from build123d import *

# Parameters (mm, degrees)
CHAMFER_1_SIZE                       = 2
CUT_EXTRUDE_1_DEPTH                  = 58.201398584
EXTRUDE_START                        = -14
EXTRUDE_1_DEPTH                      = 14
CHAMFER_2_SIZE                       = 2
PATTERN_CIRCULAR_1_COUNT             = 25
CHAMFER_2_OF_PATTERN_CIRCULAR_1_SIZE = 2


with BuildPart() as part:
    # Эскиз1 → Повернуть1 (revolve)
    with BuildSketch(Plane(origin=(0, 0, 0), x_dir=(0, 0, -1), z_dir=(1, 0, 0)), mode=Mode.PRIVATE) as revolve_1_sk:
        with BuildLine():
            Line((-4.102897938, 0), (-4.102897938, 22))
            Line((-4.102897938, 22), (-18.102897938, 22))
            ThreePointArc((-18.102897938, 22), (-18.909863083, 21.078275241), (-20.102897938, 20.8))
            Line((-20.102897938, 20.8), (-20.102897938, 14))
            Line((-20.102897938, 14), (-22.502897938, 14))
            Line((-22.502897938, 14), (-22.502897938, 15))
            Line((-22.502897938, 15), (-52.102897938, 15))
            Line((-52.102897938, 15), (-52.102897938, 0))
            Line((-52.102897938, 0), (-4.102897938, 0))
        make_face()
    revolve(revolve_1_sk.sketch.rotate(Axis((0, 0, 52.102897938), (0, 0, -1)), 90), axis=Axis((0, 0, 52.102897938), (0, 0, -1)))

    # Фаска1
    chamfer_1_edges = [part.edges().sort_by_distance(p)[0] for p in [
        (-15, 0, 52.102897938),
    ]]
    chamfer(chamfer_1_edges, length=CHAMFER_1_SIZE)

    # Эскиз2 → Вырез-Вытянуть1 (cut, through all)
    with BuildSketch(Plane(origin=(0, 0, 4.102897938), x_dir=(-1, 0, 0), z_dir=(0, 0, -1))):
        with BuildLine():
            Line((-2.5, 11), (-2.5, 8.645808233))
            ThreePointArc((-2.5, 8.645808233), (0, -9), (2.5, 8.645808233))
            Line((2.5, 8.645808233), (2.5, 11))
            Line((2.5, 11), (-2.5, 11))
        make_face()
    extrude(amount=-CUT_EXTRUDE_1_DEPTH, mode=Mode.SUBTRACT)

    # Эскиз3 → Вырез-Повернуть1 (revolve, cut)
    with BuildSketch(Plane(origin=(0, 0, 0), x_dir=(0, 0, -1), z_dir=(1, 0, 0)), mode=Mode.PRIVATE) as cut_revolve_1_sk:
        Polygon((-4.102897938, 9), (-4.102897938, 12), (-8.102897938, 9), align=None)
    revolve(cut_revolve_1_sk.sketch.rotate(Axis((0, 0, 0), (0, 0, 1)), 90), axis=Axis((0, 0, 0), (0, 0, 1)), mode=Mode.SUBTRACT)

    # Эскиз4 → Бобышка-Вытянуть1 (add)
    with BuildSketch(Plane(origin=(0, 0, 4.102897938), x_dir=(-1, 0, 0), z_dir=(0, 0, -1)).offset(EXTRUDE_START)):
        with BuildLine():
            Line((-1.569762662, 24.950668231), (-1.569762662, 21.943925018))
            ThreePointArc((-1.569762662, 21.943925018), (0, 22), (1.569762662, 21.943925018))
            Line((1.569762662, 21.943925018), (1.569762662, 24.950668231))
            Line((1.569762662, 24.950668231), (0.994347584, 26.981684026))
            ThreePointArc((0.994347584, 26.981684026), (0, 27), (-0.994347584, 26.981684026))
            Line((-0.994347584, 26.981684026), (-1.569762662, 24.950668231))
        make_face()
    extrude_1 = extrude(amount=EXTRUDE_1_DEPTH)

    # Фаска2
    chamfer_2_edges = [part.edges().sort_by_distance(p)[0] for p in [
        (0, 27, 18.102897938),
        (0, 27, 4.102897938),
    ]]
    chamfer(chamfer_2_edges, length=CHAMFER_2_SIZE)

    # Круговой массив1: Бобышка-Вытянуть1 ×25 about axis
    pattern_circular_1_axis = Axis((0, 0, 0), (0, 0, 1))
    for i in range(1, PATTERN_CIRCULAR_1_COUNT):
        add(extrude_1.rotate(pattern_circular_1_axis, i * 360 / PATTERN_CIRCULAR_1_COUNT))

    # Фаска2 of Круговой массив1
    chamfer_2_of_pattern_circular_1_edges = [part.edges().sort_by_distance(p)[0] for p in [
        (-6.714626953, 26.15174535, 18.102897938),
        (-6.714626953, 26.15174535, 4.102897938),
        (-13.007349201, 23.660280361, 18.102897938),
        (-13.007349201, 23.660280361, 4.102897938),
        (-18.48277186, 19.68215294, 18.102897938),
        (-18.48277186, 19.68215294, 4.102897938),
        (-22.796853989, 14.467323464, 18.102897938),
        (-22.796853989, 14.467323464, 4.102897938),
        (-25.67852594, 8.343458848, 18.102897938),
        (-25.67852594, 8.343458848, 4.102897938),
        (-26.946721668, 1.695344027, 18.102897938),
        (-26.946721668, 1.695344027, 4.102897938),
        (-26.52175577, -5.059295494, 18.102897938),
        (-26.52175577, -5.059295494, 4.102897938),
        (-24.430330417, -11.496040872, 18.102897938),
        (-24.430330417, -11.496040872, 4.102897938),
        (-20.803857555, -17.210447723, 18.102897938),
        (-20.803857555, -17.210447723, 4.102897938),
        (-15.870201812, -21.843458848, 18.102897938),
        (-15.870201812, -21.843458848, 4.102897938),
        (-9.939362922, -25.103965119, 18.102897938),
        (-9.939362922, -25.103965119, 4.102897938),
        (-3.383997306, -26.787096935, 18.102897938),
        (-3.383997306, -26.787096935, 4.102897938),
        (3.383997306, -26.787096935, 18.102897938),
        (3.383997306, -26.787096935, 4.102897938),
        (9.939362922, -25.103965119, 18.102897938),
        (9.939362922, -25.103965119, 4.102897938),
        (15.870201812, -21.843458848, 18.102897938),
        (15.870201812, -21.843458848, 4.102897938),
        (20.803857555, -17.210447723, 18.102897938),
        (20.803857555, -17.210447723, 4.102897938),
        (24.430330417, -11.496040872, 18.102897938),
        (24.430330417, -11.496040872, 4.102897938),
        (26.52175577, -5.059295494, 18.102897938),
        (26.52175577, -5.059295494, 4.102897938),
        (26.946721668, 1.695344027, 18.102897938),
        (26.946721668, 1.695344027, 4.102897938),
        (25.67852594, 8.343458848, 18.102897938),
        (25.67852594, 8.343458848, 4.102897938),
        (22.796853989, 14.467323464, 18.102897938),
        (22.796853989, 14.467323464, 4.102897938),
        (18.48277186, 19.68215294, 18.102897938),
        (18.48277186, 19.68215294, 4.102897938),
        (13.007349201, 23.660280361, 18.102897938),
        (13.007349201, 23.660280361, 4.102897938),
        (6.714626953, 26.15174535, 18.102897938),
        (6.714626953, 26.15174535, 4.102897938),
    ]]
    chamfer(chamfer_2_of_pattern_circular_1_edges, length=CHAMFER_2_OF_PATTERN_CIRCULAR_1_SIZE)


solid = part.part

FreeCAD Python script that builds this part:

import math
import FreeCAD as App
import Part
import Sketcher
from FreeCAD import Vector
Q = App.Units.Quantity


def edges_at(feature, points):
    """Names of the edges that pass closest to the given points."""
    edges = feature.Shape.Edges
    near = lambda p: min(range(len(edges)), key=lambda i: edges[i].distToShape(Part.Vertex(*p))[0])
    return sorted({f"Edge{near(p) + 1}" for p in points})

doc = App.newDocument("Part")
body = doc.addObject("PartDesign::Body", "Body")

# Sketch on YZ plane
sketch1 = doc.addObject("Sketcher::SketchObject", "Sketch")
body.addObject(sketch1)
sketch1.AttachmentSupport = (doc.YZ_Plane, [""])
sketch1.MapMode = "FlatFace"
sketch1.addGeometry(Part.LineSegment(Vector(0, 4.1, 0), Vector(22, 4.1, 0)), False)
sketch1.addGeometry(Part.LineSegment(Vector(22, 4.1, 0), Vector(22, 18.1, 0)), False)
sketch1.addGeometry(Part.ArcOfCircle(Part.Circle(Vector(22.8, 19.9, 0), Vector(0, 0, 1), 2), math.radians(175), math.radians(247)), False)
sketch1.addGeometry(Part.LineSegment(Vector(20.8, 20.1, 0), Vector(14, 20.1, 0)), False)
sketch1.addGeometry(Part.LineSegment(Vector(14, 20.1, 0), Vector(14, 22.5, 0)), False)
sketch1.addGeometry(Part.LineSegment(Vector(14, 22.5, 0), Vector(15, 22.5, 0)), False)
sketch1.addGeometry(Part.LineSegment(Vector(15, 22.5, 0), Vector(15, 52.1, 0)), False)
sketch1.addGeometry(Part.LineSegment(Vector(15, 52.1, 0), Vector(0, 52.1, 0)), False)
sketch1.addGeometry(Part.LineSegment(Vector(0, 52.1, 0), Vector(0, 4.1, 0)), False)
sketch1.addConstraint(Sketcher.Constraint("Coincident", 0, 2, 1, 1))
sketch1.addConstraint(Sketcher.Constraint("Coincident", 1, 2, 2, 2))
sketch1.addConstraint(Sketcher.Constraint("Coincident", 2, 1, 3, 1))
sketch1.addConstraint(Sketcher.Constraint("Coincident", 3, 2, 4, 1))
sketch1.addConstraint(Sketcher.Constraint("Coincident", 4, 2, 5, 1))
sketch1.addConstraint(Sketcher.Constraint("Coincident", 5, 2, 6, 1))
sketch1.addConstraint(Sketcher.Constraint("Coincident", 6, 2, 7, 1))
sketch1.addConstraint(Sketcher.Constraint("Coincident", 7, 2, 8, 1))
sketch1.addConstraint(Sketcher.Constraint("Coincident", 8, 2, 0, 1))
sketch1.addConstraint(Sketcher.Constraint("Horizontal", 0))
sketch1.addConstraint(Sketcher.Constraint("Vertical", 1))
sketch1.addConstraint(Sketcher.Constraint("Horizontal", 3))
sketch1.addConstraint(Sketcher.Constraint("Vertical", 4))
sketch1.addConstraint(Sketcher.Constraint("Horizontal", 5))
sketch1.addConstraint(Sketcher.Constraint("Vertical", 6))
sketch1.addConstraint(Sketcher.Constraint("Horizontal", 7))
sketch1.addConstraint(Sketcher.Constraint("Vertical", 8))
sketch1.addConstraint(Sketcher.Constraint("PointOnObject", 7, 2, -2))
sketch1.addConstraint(Sketcher.Constraint("Radius", 2, Q("2 mm")))
sketch1.addConstraint(Sketcher.Constraint("DistanceX", 0, 1, 0, 2, Q("22 mm")))
sketch1.addConstraint(Sketcher.Constraint("DistanceX", 5, 1, 5, 2, Q("1 mm")))
sketch1.addConstraint(Sketcher.Constraint("DistanceX", 7, 2, 7, 1, Q("15 mm")))
sketch1.addConstraint(Sketcher.Constraint("DistanceY", 1, 1, 1, 2, Q("14 mm")))
sketch1.addConstraint(Sketcher.Constraint("DistanceY", 8, 2, 8, 1, Q("48 mm")))
sketch1.addConstraint(Sketcher.Constraint("DistanceX", 3, 2, 3, 1, Q("6.8 mm")))
sketch1.addConstraint(Sketcher.Constraint("DistanceY", 4, 1, 4, 2, Q("2.4 mm")))
sketch1.addConstraint(Sketcher.Constraint("DistanceY", 6, 1, 6, 2, Q("29.6 mm")))
sketch1.addConstraint(Sketcher.Constraint("DistanceY", -1, 1, 2, 3, Q("19.938855 mm")))
revolution = doc.addObject("PartDesign::Revolution", "Revolution")
body.addObject(revolution)
revolution.Profile = sketch1
revolution.ReferenceAxis = (sketch1, ["V_Axis"])
revolution.Angle = 360
doc.recompute()

chamfer = doc.addObject("PartDesign::Chamfer", "Chamfer")
body.addObject(chamfer)
chamfer.Base = (revolution, edges_at(revolution, [(-15, 0, 52.103)]))
chamfer.Size = 2

# Sketch on XY plane
sketch2 = doc.addObject("Sketcher::SketchObject", "Sketch001")
body.addObject(sketch2)
sketch2.AttachmentSupport = (doc.XY_Plane, [""])
sketch2.MapMode = "FlatFace"
sketch2.AttachmentOffset = App.Placement(Vector(0, 0, 4.102898), App.Rotation())
sketch2.addGeometry(Part.LineSegment(Vector(2.5, 11, 0), Vector(2.5, 8.6, 0)), False)
sketch2.addGeometry(Part.ArcOfCircle(Part.Circle(Vector(0, 0, 0), Vector(0, 0, 1), 9), math.radians(106), math.radians(434)), False)
sketch2.addGeometry(Part.LineSegment(Vector(-2.5, 8.6, 0), Vector(-2.5, 11, 0)), False)
sketch2.addGeometry(Part.LineSegment(Vector(-2.5, 11, 0), Vector(2.5, 11, 0)), False)
sketch2.addConstraint(Sketcher.Constraint("Coincident", 0, 2, 1, 2))
sketch2.addConstraint(Sketcher.Constraint("Coincident", 1, 1, 2, 1))
sketch2.addConstraint(Sketcher.Constraint("Coincident", 2, 2, 3, 1))
sketch2.addConstraint(Sketcher.Constraint("Coincident", 3, 2, 0, 1))
sketch2.addConstraint(Sketcher.Constraint("Vertical", 0))
sketch2.addConstraint(Sketcher.Constraint("Vertical", 2))
sketch2.addConstraint(Sketcher.Constraint("Horizontal", 3))
sketch2.addConstraint(Sketcher.Constraint("Coincident", 1, 3, -1, 1))
sketch2.addConstraint(Sketcher.Constraint("Horizontal", 0, 2, 1, 1))
sketch2.addConstraint(Sketcher.Constraint("Radius", 1, Q("9 mm")))
sketch2.addConstraint(Sketcher.Constraint("DistanceX", 3, 1, 3, 2, Q("5 mm")))
sketch2.addConstraint(Sketcher.Constraint("DistanceY", -1, 1, 2, 2, Q("11 mm")))
pocket1 = doc.addObject("PartDesign::Pocket", "Pocket")
body.addObject(pocket1)
pocket1.Profile = sketch2
pocket1.Type = "ThroughAll"
pocket1.Reversed = True

# Sketch on YZ plane
sketch3 = doc.addObject("Sketcher::SketchObject", "Sketch002")
body.addObject(sketch3)
sketch3.AttachmentSupport = (doc.YZ_Plane, [""])
sketch3.MapMode = "FlatFace"
sketch3.addGeometry(Part.LineSegment(Vector(9, 4.1, 0), Vector(12, 4.1, 0)), False)
sketch3.addGeometry(Part.LineSegment(Vector(12, 4.1, 0), Vector(9, 8.1, 0)), False)
sketch3.addGeometry(Part.LineSegment(Vector(9, 8.1, 0), Vector(9, 4.1, 0)), False)
sketch3.addConstraint(Sketcher.Constraint("Coincident", 0, 2, 1, 1))
sketch3.addConstraint(Sketcher.Constraint("Coincident", 1, 2, 2, 1))
sketch3.addConstraint(Sketcher.Constraint("Coincident", 2, 2, 0, 1))
sketch3.addConstraint(Sketcher.Constraint("Horizontal", 0))
sketch3.addConstraint(Sketcher.Constraint("Vertical", 2))
sketch3.addConstraint(Sketcher.Constraint("DistanceX", 0, 1, 0, 2, Q("3 mm")))
sketch3.addConstraint(Sketcher.Constraint("DistanceY", 2, 2, 2, 1, Q("4 mm")))
sketch3.addConstraint(Sketcher.Constraint("DistanceX", -1, 1, 0, 2, Q("12 mm")))
sketch3.addConstraint(Sketcher.Constraint("DistanceY", -1, 1, 0, 2, Q("4.102898 mm")))
groove = doc.addObject("PartDesign::Groove", "Groove")
body.addObject(groove)
groove.Profile = sketch3
groove.ReferenceAxis = (sketch3, ["V_Axis"])
groove.Angle = 360

# Sketch on XY plane
sketch4 = doc.addObject("Sketcher::SketchObject", "Sketch003")
body.addObject(sketch4)
sketch4.AttachmentSupport = (doc.XY_Plane, [""])
sketch4.MapMode = "FlatFace"
sketch4.AttachmentOffset = App.Placement(Vector(0, 0, 18.102898), App.Rotation())
sketch4.addGeometry(Part.LineSegment(Vector(1.6, 25, 0), Vector(1.6, 21.9, 0)), False)
sketch4.addGeometry(Part.ArcOfCircle(Part.Circle(Vector(0, 0, 0), Vector(0, 0, 1), 22), math.radians(85.91), math.radians(94.09)), False)
sketch4.addGeometry(Part.LineSegment(Vector(-1.6, 21.9, 0), Vector(-1.6, 25, 0)), False)
sketch4.addGeometry(Part.LineSegment(Vector(-1.6, 25, 0), Vector(-1, 27, 0)), False)
sketch4.addGeometry(Part.ArcOfCircle(Part.Circle(Vector(0, 0, 0), Vector(0, 0, 1), 27), math.radians(87.89), math.radians(92.11)), False)
sketch4.addGeometry(Part.LineSegment(Vector(1, 27, 0), Vector(1.6, 25, 0)), False)
sketch4.addConstraint(Sketcher.Constraint("Coincident", 0, 2, 1, 1))
sketch4.addConstraint(Sketcher.Constraint("Coincident", 1, 2, 2, 1))
sketch4.addConstraint(Sketcher.Constraint("Coincident", 2, 2, 3, 1))
sketch4.addConstraint(Sketcher.Constraint("Coincident", 3, 2, 4, 2))
sketch4.addConstraint(Sketcher.Constraint("Coincident", 4, 1, 5, 1))
sketch4.addConstraint(Sketcher.Constraint("Coincident", 5, 2, 0, 1))
sketch4.addConstraint(Sketcher.Constraint("Vertical", 0))
sketch4.addConstraint(Sketcher.Constraint("Vertical", 2))
sketch4.addConstraint(Sketcher.Constraint("Coincident", 1, 3, -1, 1))
sketch4.addConstraint(Sketcher.Constraint("Coincident", 4, 3, -1, 1))
sketch4.addConstraint(Sketcher.Constraint("Symmetric", 2, 2, 5, 2, -2))
sketch4.addConstraint(Sketcher.Constraint("Horizontal", 3, 2, 4, 1))
sketch4.addConstraint(Sketcher.Constraint("Radius", 1, Q("22 mm")))
sketch4.addConstraint(Sketcher.Constraint("Radius", 4, Q("27 mm")))
sketch4.addConstraint(Sketcher.Constraint("DistanceY", 0, 2, 0, 1, Q("3.006743 mm")))
sketch4.addConstraint(Sketcher.Constraint("DistanceY", -1, 1, 2, 2, Q("24.950668 mm")))
sketch4.addConstraint(Sketcher.Constraint("DistanceY", 1, 2, 3, 2, Q("5.037759 mm")))
pad1 = doc.addObject("PartDesign::Pad", "Pad")
body.addObject(pad1)
pad1.Profile = sketch4
pad1.Length = 14
pad1.Reversed = True
doc.recompute()

chamfer2 = doc.addObject("PartDesign::Chamfer", "Chamfer001")
body.addObject(chamfer2)
chamfer2.Base = (pad1, edges_at(pad1, [(0, 27, 18.103), (0, 27, 4.103)]))
chamfer2.Size = 2
doc.recompute()

polarpattern = doc.addObject("PartDesign::PolarPattern", "PolarPattern")
body.addObject(polarpattern)
polarpattern.Originals = [pad1]
polarpattern.Axis = (doc.Z_Axis, [""])
polarpattern.Angle = 360
polarpattern.Occurrences = 25
body.Tip = polarpattern
doc.recompute()

chamfer3 = doc.addObject("PartDesign::Chamfer", "Chamfer002")
body.addObject(chamfer3)
chamfer3.Base = (polarpattern, edges_at(polarpattern, [
    (-6.715, 26.152, 18.103),
    (-6.715, 26.152, 4.103),
    (-13.007, 23.66, 18.103),
    (-13.007, 23.66, 4.103),
    (-18.483, 19.682, 18.103),
    (-18.483, 19.682, 4.103),
    (-22.797, 14.467, 18.103),
    (-22.797, 14.467, 4.103),
    (-25.679, 8.343, 18.103),
    (-25.679, 8.343, 4.103),
    (-26.947, 1.695, 18.103),
    (-26.947, 1.695, 4.103),
    (-26.522, -5.059, 18.103),
    (-26.522, -5.059, 4.103),
    (-24.43, -11.496, 18.103),
    (-24.43, -11.496, 4.103),
    (-20.804, -17.21, 18.103),
    (-20.804, -17.21, 4.103),
    (-15.87, -21.843, 18.103),
    (-15.87, -21.843, 4.103),
    (-9.939, -25.104, 18.103),
    (-9.939, -25.104, 4.103),
    (-3.384, -26.787, 18.103),
    (-3.384, -26.787, 4.103),
    (3.384, -26.787, 18.103),
    (3.384, -26.787, 4.103),
    (9.939, -25.104, 18.103),
    (9.939, -25.104, 4.103),
    (15.87, -21.843, 18.103),
    (15.87, -21.843, 4.103),
    (20.804, -17.21, 18.103),
    (20.804, -17.21, 4.103),
    (24.43, -11.496, 18.103),
    (24.43, -11.496, 4.103),
    (26.522, -5.059, 18.103),
    (26.522, -5.059, 4.103),
    (26.947, 1.695, 18.103),
    (26.947, 1.695, 4.103),
    (25.679, 8.343, 18.103),
    (25.679, 8.343, 4.103),
    (22.797, 14.467, 18.103),
    (22.797, 14.467, 4.103),
    (18.483, 19.682, 18.103),
    (18.483, 19.682, 4.103),
    (13.007, 23.66, 18.103),
    (13.007, 23.66, 4.103),
    (6.715, 26.152, 18.103),
    (6.715, 26.152, 4.103),
]))
chamfer3.Size = 2

doc.recompute()
